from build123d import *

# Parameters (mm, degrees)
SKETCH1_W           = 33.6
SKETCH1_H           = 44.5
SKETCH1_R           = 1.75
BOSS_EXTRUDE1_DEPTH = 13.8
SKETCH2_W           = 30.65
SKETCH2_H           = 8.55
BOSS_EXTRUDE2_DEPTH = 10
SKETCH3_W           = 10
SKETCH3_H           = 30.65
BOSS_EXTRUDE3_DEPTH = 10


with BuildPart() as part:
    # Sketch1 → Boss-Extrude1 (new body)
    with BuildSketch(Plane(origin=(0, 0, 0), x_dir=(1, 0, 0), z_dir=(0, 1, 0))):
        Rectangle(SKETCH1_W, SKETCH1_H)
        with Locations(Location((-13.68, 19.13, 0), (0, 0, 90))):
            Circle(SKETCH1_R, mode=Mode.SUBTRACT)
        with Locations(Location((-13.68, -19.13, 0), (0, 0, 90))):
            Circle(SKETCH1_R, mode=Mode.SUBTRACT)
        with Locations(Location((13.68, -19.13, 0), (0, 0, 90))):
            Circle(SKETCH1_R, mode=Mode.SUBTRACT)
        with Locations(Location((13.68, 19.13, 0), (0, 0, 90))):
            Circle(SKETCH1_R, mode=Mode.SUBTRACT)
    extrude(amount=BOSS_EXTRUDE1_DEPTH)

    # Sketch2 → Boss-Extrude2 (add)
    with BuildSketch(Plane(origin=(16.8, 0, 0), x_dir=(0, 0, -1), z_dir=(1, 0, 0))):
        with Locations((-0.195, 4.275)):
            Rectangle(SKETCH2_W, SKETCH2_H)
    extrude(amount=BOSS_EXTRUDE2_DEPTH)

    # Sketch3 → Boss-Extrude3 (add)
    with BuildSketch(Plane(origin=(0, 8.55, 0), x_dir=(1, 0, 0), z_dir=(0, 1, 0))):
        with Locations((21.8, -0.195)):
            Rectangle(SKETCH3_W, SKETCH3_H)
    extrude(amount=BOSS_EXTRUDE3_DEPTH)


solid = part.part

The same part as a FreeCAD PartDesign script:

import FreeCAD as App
import Part
import Sketcher
from FreeCAD import Vector


def add_polygon(sketch, points):
    """Adds a closed chain of lines whose ends are joined by coincident constraints."""
    first, n = sketch.GeometryCount, len(points)
    for a, b in zip(points, points[1:] + points[:1]):
        sketch.addGeometry(Part.LineSegment(App.Vector(*a, 0), App.Vector(*b, 0)), False)
    for i in range(n):
        sketch.addConstraint(Sketcher.Constraint("Coincident", first + i, 2, first + (i + 1) % n, 1))

doc = App.newDocument("Part")
params = doc.addObject("Spreadsheet::Sheet", "Params")
for row, (alias, value) in enumerate([
    ("sketch1_diameter", "3.5 mm"),
    ("sketch1_width", "33.6 mm"),
    ("sketch1_height", "44.5 mm"),
    ("pad1_length", "13.8 mm"),
    ("sketch2_width", "8.55 mm"),
    ("sketch2_height", "30.65 mm"),
    ("pad2_length", "10 mm"),
    ("sketch3_width", "10 mm"),
    ("sketch3_height", "30.65 mm"),
    ("pad3_length", "10 mm"),
], start=1):
    params.set(f"A{row}", alias)
    params.set(f"B{row}", "=" + value)
    params.setAlias(f"B{row}", alias)

body = doc.addObject("PartDesign::Body", "Body")

sketch1 = body.newObject("Sketcher::SketchObject", "Sketch")
sketch1.AttachmentSupport = (doc.getObject("XZ_Plane"), [""])
sketch1.MapMode = "FlatFace"
add_polygon(sketch1, [(-16.8, -22.2), (-16.8, 22.2), (16.8, 22.2), (16.8, -22.2)])
sketch1.addGeometry(Part.Circle(Vector(-13.7, 19.1, 0), Vector(0, 0, 1), 1.8), False)
sketch1.addGeometry(Part.Circle(Vector(13.7, 19.1, 0), Vector(0, 0, 1), 1.8), False)
sketch1.addGeometry(Part.Circle(Vector(-13.7, -19.1, 0), Vector(0, 0, 1), 1.8), False)
sketch1.addGeometry(Part.Circle(Vector(13.7, -19.1, 0), Vector(0, 0, 1), 1.8), False)
sketch1.addConstraint([
    Sketcher.Constraint("Vertical", 0),
    Sketcher.Constraint("Horizontal", 1),
    Sketcher.Constraint("Vertical", 2),
    Sketcher.Constraint("Horizontal", 3),
    Sketcher.Constraint("Equal", 4, 5),
    Sketcher.Constraint("Equal", 5, 6),
    Sketcher.Constraint("Equal", 6, 7),
    Sketcher.Constraint("Symmetric", 5, 3, 6, 3, -1, 1),
    Sketcher.Constraint("Symmetric", 4, 3, 7, 3, -1, 1),
    Sketcher.Constraint("Symmetric", 0, 2, 2, 2, -1, 1),
    Sketcher.Constraint("Symmetric", 4, 3, 5, 3, -2),
    Sketcher.Constraint("Diameter", 4, 3.5),
    Sketcher.Constraint("DistanceX", 1, 1, 1, 2, 33.6),
    Sketcher.Constraint("DistanceY", 0, 1, 0, 2, 44.5),
    Sketcher.Constraint("DistanceX", 4, 3, -1, 1, 13.68),
    Sketcher.Constraint("DistanceY", -1, 1, 4, 3, 19.13),
])
sketch1.setExpression("Constraints[15]", "Params.sketch1_diameter")
sketch1.setExpression("Constraints[16]", "Params.sketch1_width")
sketch1.setExpression("Constraints[17]", "Params.sketch1_height")
pad1 = body.newObject("PartDesign::Pad", "Pad")
pad1.Profile = sketch1
pad1.setExpression("Length", "Params.pad1_length")
pad1.Reversed = True

sketch2 = body.newObject("Sketcher::SketchObject", "Sketch001")
sketch2.AttachmentSupport = (doc.getObject("YZ_Plane"), [""])
sketch2.MapMode = "FlatFace"
sketch2.AttachmentOffset = App.Placement(Vector(0, 0, 16.8), App.Rotation())
add_polygon(sketch2, [(9, 16), (0, 16), (0, -15), (9, -15)])
sketch2.addConstraint([
    Sketcher.Constraint("Horizontal", 0),
    Sketcher.Constraint("Vertical", 1),
    Sketcher.Constraint("Horizontal", 2),
    Sketcher.Constraint("Vertical", 3),
    Sketcher.Constraint("PointOnObject", 0, 2, -2),
    Sketcher.Constraint("DistanceX", 0, 2, 0, 1, 8.55),
    Sketcher.Constraint("DistanceY", 1, 2, 1, 1, 30.65),
    Sketcher.Constraint("DistanceY", -1, 1, 0, 2, 15.52),
])
sketch2.setExpression("Constraints[9]", "Params.sketch2_width")
sketch2.setExpression("Constraints[10]", "Params.sketch2_height")
pad2 = body.newObject("PartDesign::Pad", "Pad001")
pad2.Profile = sketch2
pad2.setExpression("Length", "Params.pad2_length")

sketch3 = body.newObject("Sketcher::SketchObject", "Sketch002")
sketch3.AttachmentSupport = (doc.getObject("XZ_Plane"), [""])
sketch3.MapMode = "FlatFace"
sketch3.AttachmentOffset = App.Placement(Vector(0, 0, -8.55), App.Rotation())
add_polygon(sketch3, [(17, -15), (17, 16), (27, 16), (27, -15)])
sketch3.addConstraint([
    Sketcher.Constraint("Vertical", 0),
    Sketcher.Constraint("Horizontal", 1),
    Sketcher.Constraint("Vertical", 2),
    Sketcher.Constraint("Horizontal", 3),
    Sketcher.Constraint("DistanceX", 1, 1, 1, 2, 10.0),
    Sketcher.Constraint("DistanceY", 0, 1, 0, 2, 30.65),
    Sketcher.Constraint("DistanceX", -1, 1, 0, 2, 16.8),
    Sketcher.Constraint("DistanceY", -1, 1, 0, 2, 15.52),
])
sketch3.setExpression("Constraints[8]", "Params.sketch3_width")
sketch3.setExpression("Constraints[9]", "Params.sketch3_height")
pad3 = body.newObject("PartDesign::Pad", "Pad002")
pad3.Profile = sketch3
pad3.setExpression("Length", "Params.pad3_length")
pad3.Reversed = True

doc.recompute()
